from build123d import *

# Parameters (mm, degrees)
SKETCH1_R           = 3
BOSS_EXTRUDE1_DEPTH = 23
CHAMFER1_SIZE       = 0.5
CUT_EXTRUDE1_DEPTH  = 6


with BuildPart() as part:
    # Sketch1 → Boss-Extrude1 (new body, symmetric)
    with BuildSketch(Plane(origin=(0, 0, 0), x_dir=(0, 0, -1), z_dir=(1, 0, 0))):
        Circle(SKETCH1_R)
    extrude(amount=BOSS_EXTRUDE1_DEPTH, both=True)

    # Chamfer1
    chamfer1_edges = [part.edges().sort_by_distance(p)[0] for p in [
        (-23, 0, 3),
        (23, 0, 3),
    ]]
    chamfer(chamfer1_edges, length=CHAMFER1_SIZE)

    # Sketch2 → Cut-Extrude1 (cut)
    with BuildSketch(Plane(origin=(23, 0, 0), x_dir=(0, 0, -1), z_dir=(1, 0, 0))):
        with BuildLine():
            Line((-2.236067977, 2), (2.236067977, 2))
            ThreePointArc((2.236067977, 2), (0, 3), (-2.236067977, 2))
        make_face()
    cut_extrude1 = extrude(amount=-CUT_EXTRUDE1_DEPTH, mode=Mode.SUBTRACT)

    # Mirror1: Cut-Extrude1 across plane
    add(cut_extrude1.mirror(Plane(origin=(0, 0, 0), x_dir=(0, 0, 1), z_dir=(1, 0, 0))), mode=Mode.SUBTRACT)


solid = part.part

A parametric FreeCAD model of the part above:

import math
import FreeCAD as App
import Part
import Sketcher

V = App.Vector
Q = App.Units.Quantity


def edges_at(feature, points):
    """Names of the edges that pass closest to the given points."""
    edges = feature.Shape.Edges
    near = lambda p: min(range(len(edges)), key=lambda i: edges[i].distToShape(Part.Vertex(*p))[0])
    return sorted({f"Edge{near(p) + 1}" for p in points})

doc = App.newDocument("Part")
body = doc.addObject("PartDesign::Body", "Body")

sketch1 = body.newObject("Sketcher::SketchObject", "Sketch")
sketch1.AttachmentSupport = (doc.getObject("YZ_Plane"), [""])
sketch1.MapMode = "FlatFace"
sketch1.addGeometry(Part.Circle(V(0, 0, 0), V(0, 0, 1), 3), False)
sketch1.addConstraint([
    Sketcher.Constraint("Coincident", 0, 3, -1, 1),
    Sketcher.Constraint("Diameter", 0, Q("6 mm")),
])
pad1 = body.newObject("PartDesign::Pad", "Pad")
pad1.Profile = sketch1
pad1.Length = 46
pad1.Midplane = True
doc.recompute()

chamfer = body.newObject("PartDesign::Chamfer", "Chamfer")
chamfer.Base = (pad1, edges_at(pad1, [(-23, 0, 3), (23, 0, 3)]))
chamfer.Size = 0.5

sketch2 = body.newObject("Sketcher::SketchObject", "Sketch001")
sketch2.AttachmentSupport = (doc.getObject("YZ_Plane"), [""])
sketch2.MapMode = "FlatFace"
sketch2.AttachmentOffset = App.Placement(V(0, 0, 23), App.Rotation())
sketch2.addGeometry([
    Part.LineSegment(V(2, 2.2, 0), V(2, -2.2, 0)),
    Part.ArcOfCircle(Part.Circle(V(0, 0, 0), V(0, 0, 1), 3), math.radians(-48), math.radians(48)),
], False)
sketch2.addConstraint([
    Sketcher.Constraint("Coincident", 0, 1, 1, 2),
    Sketcher.Constraint("Coincident", 1, 1, 0, 2),
    Sketcher.Constraint("Vertical", 0),
    Sketcher.Constraint("Coincident", 1, 3, -1, 1),
    Sketcher.Constraint("Radius", 1, Q("3 mm")),
    Sketcher.Constraint("DistanceX", -1, 1, 0, 1, Q("2 mm")),
])
pocket1 = body.newObject("PartDesign::Pocket", "Pocket")
pocket1.Profile = sketch2
pocket1.Length = 6
doc.recompute()

mirrored = body.newObject("PartDesign::Mirrored", "Mirrored")
mirrored.Originals = [pocket1]
mirrored.MirrorPlane = (doc.getObject("YZ_Plane"), [""])
body.Tip = mirrored

doc.recompute()
